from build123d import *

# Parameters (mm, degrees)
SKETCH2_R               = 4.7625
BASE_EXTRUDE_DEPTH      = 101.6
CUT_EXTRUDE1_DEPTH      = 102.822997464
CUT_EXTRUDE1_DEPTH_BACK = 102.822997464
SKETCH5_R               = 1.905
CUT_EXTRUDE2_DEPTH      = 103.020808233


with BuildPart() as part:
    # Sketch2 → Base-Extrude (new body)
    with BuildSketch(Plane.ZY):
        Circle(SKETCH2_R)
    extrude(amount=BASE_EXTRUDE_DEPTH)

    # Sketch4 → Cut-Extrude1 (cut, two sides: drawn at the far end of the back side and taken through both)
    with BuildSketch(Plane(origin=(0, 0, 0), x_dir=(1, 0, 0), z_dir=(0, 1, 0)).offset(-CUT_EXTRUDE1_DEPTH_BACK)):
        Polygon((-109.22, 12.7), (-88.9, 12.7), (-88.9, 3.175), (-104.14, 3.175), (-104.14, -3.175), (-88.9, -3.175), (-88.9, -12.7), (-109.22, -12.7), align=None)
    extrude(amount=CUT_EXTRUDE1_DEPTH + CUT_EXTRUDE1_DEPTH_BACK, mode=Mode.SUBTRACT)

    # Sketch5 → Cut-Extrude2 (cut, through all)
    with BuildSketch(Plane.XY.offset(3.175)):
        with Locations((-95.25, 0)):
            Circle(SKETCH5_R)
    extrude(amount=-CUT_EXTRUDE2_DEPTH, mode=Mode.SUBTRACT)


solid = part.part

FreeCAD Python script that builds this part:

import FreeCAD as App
import Part
import Sketcher
Q = App.Units.Quantity


def add_polygon(sketch, points):
    """Adds a closed chain of lines whose ends are joined by coincident constraints."""
    first, n = sketch.GeometryCount, len(points)
    for a, b in zip(points, points[1:] + points[:1]):
        sketch.addGeometry(Part.LineSegment(App.Vector(*a, 0), App.Vector(*b, 0)), False)
    for i in range(n):
        sketch.addConstraint(Sketcher.Constraint("Coincident", first + i, 2, first + (i + 1) % n, 1))

doc = App.newDocument("Part")
params = doc.addObject("Spreadsheet::Sheet", "Params")
for row, (alias, value) in enumerate([
    ("sketch1_diameter", "0.375 in"),
    ("pad1_length", "4 in"),
    ("sketch2_height", "1 in"),
    ("sketch2_width", "0.8 in"),
    ("sketch2_width2", "0.6 in"),
    ("sketch2_height2", "0.25 in"),
    ("sketch3_diameter", "0.15 in"),
], start=1):
    params.set(f"A{row}", alias)
    params.set(f"B{row}", "=" + value)
    params.setAlias(f"B{row}", alias)

body = doc.addObject("PartDesign::Body", "Body")

sketch1 = doc.addObject("Sketcher::SketchObject", "Sketch")
body.addObject(sketch1)
sketch1.AttachmentSupport = (doc.YZ_Plane, [""])
sketch1.MapMode = "FlatFace"
sketch1.addGeometry(Part.Circle(App.Vector(0, 0, 0), App.Vector(0, 0, 1), 4.8), False)
sketch1.addConstraint(Sketcher.Constraint("Coincident", 0, 3, -1, 1))
sketch1.addConstraint(Sketcher.Constraint("Diameter", 0, Q("0.375 in")))
sketch1.setExpression("Constraints[1]", "Params.sketch1_diameter")
pad1 = doc.addObject("PartDesign::Pad", "Pad")
body.addObject(pad1)
pad1.Profile = sketch1
pad1.setExpression("Length", "Params.pad1_length")
pad1.Reversed = True

sketch2 = doc.addObject("Sketcher::SketchObject", "Sketch001")
body.addObject(sketch2)
sketch2.AttachmentSupport = (doc.XZ_Plane, [""])
sketch2.MapMode = "FlatFace"
add_polygon(sketch2, [(-89, -13), (-109, -13), (-109, 13), (-89, 13), (-89, 3), (-104, 3), (-104, -3), (-89, -3)])
sketch2.addConstraint(Sketcher.Constraint("Horizontal", 0))
sketch2.addConstraint(Sketcher.Constraint("Vertical", 1))
sketch2.addConstraint(Sketcher.Constraint("Horizontal", 2))
sketch2.addConstraint(Sketcher.Constraint("Vertical", 3))
sketch2.addConstraint(Sketcher.Constraint("Horizontal", 4))
sketch2.addConstraint(Sketcher.Constraint("Vertical", 5))
sketch2.addConstraint(Sketcher.Constraint("Horizontal", 6))
sketch2.addConstraint(Sketcher.Constraint("Vertical", 7))
sketch2.addConstraint(Sketcher.Constraint("Symmetric", 3, 2, 6, 2, -1))
sketch2.addConstraint(Sketcher.Constraint("Equal", 3, 7))
sketch2.addConstraint(Sketcher.Constraint("DistanceY", 1, 1, 1, 2, Q("1 in")))
sketch2.addConstraint(Sketcher.Constraint("DistanceX", 0, 2, 0, 1, Q("0.8 in")))
sketch2.addConstraint(Sketcher.Constraint("DistanceX", 4, 2, 4, 1, Q("0.6 in")))
sketch2.addConstraint(Sketcher.Constraint("DistanceY", 5, 2, 5, 1, Q("0.25 in")))
sketch2.addConstraint(Sketcher.Constraint("DistanceX", 0, 2, -1, 1, Q("4.3 in")))
sketch2.setExpression("Constraints[18]", "Params.sketch2_height")
sketch2.setExpression("Constraints[19]", "Params.sketch2_width")
sketch2.setExpression("Constraints[20]", "Params.sketch2_width2")
sketch2.setExpression("Constraints[21]", "Params.sketch2_height2")
pocket1 = doc.addObject("PartDesign::Pocket", "Pocket")
body.addObject(pocket1)
pocket1.Profile = sketch2
pocket1.Type = "ThroughAll"
pocket1.Midplane = True

sketch3 = doc.addObject("Sketcher::SketchObject", "Sketch002")
body.addObject(sketch3)
sketch3.AttachmentSupport = (doc.XY_Plane, [""])
sketch3.MapMode = "FlatFace"
sketch3.AttachmentOffset = App.Placement(App.Vector(0, 0, 0.125 * 25.4), App.Rotation())
sketch3.addGeometry(Part.Circle(App.Vector(-95.2, 0, 0), App.Vector(0, 0, 1), 1.9), False)
sketch3.addConstraint(Sketcher.Constraint("PointOnObject", 0, 3, -1))
sketch3.addConstraint(Sketcher.Constraint("Diameter", 0, Q("0.15 in")))
sketch3.addConstraint(Sketcher.Constraint("DistanceX", 0, 3, -1, 1, Q("3.75 in")))
sketch3.setExpression("Constraints[1]", "Params.sketch3_diameter")
pocket2 = doc.addObject("PartDesign::Pocket", "Pocket001")
body.addObject(pocket2)
pocket2.Profile = sketch3
pocket2.Type = "ThroughAll"

doc.recompute()
